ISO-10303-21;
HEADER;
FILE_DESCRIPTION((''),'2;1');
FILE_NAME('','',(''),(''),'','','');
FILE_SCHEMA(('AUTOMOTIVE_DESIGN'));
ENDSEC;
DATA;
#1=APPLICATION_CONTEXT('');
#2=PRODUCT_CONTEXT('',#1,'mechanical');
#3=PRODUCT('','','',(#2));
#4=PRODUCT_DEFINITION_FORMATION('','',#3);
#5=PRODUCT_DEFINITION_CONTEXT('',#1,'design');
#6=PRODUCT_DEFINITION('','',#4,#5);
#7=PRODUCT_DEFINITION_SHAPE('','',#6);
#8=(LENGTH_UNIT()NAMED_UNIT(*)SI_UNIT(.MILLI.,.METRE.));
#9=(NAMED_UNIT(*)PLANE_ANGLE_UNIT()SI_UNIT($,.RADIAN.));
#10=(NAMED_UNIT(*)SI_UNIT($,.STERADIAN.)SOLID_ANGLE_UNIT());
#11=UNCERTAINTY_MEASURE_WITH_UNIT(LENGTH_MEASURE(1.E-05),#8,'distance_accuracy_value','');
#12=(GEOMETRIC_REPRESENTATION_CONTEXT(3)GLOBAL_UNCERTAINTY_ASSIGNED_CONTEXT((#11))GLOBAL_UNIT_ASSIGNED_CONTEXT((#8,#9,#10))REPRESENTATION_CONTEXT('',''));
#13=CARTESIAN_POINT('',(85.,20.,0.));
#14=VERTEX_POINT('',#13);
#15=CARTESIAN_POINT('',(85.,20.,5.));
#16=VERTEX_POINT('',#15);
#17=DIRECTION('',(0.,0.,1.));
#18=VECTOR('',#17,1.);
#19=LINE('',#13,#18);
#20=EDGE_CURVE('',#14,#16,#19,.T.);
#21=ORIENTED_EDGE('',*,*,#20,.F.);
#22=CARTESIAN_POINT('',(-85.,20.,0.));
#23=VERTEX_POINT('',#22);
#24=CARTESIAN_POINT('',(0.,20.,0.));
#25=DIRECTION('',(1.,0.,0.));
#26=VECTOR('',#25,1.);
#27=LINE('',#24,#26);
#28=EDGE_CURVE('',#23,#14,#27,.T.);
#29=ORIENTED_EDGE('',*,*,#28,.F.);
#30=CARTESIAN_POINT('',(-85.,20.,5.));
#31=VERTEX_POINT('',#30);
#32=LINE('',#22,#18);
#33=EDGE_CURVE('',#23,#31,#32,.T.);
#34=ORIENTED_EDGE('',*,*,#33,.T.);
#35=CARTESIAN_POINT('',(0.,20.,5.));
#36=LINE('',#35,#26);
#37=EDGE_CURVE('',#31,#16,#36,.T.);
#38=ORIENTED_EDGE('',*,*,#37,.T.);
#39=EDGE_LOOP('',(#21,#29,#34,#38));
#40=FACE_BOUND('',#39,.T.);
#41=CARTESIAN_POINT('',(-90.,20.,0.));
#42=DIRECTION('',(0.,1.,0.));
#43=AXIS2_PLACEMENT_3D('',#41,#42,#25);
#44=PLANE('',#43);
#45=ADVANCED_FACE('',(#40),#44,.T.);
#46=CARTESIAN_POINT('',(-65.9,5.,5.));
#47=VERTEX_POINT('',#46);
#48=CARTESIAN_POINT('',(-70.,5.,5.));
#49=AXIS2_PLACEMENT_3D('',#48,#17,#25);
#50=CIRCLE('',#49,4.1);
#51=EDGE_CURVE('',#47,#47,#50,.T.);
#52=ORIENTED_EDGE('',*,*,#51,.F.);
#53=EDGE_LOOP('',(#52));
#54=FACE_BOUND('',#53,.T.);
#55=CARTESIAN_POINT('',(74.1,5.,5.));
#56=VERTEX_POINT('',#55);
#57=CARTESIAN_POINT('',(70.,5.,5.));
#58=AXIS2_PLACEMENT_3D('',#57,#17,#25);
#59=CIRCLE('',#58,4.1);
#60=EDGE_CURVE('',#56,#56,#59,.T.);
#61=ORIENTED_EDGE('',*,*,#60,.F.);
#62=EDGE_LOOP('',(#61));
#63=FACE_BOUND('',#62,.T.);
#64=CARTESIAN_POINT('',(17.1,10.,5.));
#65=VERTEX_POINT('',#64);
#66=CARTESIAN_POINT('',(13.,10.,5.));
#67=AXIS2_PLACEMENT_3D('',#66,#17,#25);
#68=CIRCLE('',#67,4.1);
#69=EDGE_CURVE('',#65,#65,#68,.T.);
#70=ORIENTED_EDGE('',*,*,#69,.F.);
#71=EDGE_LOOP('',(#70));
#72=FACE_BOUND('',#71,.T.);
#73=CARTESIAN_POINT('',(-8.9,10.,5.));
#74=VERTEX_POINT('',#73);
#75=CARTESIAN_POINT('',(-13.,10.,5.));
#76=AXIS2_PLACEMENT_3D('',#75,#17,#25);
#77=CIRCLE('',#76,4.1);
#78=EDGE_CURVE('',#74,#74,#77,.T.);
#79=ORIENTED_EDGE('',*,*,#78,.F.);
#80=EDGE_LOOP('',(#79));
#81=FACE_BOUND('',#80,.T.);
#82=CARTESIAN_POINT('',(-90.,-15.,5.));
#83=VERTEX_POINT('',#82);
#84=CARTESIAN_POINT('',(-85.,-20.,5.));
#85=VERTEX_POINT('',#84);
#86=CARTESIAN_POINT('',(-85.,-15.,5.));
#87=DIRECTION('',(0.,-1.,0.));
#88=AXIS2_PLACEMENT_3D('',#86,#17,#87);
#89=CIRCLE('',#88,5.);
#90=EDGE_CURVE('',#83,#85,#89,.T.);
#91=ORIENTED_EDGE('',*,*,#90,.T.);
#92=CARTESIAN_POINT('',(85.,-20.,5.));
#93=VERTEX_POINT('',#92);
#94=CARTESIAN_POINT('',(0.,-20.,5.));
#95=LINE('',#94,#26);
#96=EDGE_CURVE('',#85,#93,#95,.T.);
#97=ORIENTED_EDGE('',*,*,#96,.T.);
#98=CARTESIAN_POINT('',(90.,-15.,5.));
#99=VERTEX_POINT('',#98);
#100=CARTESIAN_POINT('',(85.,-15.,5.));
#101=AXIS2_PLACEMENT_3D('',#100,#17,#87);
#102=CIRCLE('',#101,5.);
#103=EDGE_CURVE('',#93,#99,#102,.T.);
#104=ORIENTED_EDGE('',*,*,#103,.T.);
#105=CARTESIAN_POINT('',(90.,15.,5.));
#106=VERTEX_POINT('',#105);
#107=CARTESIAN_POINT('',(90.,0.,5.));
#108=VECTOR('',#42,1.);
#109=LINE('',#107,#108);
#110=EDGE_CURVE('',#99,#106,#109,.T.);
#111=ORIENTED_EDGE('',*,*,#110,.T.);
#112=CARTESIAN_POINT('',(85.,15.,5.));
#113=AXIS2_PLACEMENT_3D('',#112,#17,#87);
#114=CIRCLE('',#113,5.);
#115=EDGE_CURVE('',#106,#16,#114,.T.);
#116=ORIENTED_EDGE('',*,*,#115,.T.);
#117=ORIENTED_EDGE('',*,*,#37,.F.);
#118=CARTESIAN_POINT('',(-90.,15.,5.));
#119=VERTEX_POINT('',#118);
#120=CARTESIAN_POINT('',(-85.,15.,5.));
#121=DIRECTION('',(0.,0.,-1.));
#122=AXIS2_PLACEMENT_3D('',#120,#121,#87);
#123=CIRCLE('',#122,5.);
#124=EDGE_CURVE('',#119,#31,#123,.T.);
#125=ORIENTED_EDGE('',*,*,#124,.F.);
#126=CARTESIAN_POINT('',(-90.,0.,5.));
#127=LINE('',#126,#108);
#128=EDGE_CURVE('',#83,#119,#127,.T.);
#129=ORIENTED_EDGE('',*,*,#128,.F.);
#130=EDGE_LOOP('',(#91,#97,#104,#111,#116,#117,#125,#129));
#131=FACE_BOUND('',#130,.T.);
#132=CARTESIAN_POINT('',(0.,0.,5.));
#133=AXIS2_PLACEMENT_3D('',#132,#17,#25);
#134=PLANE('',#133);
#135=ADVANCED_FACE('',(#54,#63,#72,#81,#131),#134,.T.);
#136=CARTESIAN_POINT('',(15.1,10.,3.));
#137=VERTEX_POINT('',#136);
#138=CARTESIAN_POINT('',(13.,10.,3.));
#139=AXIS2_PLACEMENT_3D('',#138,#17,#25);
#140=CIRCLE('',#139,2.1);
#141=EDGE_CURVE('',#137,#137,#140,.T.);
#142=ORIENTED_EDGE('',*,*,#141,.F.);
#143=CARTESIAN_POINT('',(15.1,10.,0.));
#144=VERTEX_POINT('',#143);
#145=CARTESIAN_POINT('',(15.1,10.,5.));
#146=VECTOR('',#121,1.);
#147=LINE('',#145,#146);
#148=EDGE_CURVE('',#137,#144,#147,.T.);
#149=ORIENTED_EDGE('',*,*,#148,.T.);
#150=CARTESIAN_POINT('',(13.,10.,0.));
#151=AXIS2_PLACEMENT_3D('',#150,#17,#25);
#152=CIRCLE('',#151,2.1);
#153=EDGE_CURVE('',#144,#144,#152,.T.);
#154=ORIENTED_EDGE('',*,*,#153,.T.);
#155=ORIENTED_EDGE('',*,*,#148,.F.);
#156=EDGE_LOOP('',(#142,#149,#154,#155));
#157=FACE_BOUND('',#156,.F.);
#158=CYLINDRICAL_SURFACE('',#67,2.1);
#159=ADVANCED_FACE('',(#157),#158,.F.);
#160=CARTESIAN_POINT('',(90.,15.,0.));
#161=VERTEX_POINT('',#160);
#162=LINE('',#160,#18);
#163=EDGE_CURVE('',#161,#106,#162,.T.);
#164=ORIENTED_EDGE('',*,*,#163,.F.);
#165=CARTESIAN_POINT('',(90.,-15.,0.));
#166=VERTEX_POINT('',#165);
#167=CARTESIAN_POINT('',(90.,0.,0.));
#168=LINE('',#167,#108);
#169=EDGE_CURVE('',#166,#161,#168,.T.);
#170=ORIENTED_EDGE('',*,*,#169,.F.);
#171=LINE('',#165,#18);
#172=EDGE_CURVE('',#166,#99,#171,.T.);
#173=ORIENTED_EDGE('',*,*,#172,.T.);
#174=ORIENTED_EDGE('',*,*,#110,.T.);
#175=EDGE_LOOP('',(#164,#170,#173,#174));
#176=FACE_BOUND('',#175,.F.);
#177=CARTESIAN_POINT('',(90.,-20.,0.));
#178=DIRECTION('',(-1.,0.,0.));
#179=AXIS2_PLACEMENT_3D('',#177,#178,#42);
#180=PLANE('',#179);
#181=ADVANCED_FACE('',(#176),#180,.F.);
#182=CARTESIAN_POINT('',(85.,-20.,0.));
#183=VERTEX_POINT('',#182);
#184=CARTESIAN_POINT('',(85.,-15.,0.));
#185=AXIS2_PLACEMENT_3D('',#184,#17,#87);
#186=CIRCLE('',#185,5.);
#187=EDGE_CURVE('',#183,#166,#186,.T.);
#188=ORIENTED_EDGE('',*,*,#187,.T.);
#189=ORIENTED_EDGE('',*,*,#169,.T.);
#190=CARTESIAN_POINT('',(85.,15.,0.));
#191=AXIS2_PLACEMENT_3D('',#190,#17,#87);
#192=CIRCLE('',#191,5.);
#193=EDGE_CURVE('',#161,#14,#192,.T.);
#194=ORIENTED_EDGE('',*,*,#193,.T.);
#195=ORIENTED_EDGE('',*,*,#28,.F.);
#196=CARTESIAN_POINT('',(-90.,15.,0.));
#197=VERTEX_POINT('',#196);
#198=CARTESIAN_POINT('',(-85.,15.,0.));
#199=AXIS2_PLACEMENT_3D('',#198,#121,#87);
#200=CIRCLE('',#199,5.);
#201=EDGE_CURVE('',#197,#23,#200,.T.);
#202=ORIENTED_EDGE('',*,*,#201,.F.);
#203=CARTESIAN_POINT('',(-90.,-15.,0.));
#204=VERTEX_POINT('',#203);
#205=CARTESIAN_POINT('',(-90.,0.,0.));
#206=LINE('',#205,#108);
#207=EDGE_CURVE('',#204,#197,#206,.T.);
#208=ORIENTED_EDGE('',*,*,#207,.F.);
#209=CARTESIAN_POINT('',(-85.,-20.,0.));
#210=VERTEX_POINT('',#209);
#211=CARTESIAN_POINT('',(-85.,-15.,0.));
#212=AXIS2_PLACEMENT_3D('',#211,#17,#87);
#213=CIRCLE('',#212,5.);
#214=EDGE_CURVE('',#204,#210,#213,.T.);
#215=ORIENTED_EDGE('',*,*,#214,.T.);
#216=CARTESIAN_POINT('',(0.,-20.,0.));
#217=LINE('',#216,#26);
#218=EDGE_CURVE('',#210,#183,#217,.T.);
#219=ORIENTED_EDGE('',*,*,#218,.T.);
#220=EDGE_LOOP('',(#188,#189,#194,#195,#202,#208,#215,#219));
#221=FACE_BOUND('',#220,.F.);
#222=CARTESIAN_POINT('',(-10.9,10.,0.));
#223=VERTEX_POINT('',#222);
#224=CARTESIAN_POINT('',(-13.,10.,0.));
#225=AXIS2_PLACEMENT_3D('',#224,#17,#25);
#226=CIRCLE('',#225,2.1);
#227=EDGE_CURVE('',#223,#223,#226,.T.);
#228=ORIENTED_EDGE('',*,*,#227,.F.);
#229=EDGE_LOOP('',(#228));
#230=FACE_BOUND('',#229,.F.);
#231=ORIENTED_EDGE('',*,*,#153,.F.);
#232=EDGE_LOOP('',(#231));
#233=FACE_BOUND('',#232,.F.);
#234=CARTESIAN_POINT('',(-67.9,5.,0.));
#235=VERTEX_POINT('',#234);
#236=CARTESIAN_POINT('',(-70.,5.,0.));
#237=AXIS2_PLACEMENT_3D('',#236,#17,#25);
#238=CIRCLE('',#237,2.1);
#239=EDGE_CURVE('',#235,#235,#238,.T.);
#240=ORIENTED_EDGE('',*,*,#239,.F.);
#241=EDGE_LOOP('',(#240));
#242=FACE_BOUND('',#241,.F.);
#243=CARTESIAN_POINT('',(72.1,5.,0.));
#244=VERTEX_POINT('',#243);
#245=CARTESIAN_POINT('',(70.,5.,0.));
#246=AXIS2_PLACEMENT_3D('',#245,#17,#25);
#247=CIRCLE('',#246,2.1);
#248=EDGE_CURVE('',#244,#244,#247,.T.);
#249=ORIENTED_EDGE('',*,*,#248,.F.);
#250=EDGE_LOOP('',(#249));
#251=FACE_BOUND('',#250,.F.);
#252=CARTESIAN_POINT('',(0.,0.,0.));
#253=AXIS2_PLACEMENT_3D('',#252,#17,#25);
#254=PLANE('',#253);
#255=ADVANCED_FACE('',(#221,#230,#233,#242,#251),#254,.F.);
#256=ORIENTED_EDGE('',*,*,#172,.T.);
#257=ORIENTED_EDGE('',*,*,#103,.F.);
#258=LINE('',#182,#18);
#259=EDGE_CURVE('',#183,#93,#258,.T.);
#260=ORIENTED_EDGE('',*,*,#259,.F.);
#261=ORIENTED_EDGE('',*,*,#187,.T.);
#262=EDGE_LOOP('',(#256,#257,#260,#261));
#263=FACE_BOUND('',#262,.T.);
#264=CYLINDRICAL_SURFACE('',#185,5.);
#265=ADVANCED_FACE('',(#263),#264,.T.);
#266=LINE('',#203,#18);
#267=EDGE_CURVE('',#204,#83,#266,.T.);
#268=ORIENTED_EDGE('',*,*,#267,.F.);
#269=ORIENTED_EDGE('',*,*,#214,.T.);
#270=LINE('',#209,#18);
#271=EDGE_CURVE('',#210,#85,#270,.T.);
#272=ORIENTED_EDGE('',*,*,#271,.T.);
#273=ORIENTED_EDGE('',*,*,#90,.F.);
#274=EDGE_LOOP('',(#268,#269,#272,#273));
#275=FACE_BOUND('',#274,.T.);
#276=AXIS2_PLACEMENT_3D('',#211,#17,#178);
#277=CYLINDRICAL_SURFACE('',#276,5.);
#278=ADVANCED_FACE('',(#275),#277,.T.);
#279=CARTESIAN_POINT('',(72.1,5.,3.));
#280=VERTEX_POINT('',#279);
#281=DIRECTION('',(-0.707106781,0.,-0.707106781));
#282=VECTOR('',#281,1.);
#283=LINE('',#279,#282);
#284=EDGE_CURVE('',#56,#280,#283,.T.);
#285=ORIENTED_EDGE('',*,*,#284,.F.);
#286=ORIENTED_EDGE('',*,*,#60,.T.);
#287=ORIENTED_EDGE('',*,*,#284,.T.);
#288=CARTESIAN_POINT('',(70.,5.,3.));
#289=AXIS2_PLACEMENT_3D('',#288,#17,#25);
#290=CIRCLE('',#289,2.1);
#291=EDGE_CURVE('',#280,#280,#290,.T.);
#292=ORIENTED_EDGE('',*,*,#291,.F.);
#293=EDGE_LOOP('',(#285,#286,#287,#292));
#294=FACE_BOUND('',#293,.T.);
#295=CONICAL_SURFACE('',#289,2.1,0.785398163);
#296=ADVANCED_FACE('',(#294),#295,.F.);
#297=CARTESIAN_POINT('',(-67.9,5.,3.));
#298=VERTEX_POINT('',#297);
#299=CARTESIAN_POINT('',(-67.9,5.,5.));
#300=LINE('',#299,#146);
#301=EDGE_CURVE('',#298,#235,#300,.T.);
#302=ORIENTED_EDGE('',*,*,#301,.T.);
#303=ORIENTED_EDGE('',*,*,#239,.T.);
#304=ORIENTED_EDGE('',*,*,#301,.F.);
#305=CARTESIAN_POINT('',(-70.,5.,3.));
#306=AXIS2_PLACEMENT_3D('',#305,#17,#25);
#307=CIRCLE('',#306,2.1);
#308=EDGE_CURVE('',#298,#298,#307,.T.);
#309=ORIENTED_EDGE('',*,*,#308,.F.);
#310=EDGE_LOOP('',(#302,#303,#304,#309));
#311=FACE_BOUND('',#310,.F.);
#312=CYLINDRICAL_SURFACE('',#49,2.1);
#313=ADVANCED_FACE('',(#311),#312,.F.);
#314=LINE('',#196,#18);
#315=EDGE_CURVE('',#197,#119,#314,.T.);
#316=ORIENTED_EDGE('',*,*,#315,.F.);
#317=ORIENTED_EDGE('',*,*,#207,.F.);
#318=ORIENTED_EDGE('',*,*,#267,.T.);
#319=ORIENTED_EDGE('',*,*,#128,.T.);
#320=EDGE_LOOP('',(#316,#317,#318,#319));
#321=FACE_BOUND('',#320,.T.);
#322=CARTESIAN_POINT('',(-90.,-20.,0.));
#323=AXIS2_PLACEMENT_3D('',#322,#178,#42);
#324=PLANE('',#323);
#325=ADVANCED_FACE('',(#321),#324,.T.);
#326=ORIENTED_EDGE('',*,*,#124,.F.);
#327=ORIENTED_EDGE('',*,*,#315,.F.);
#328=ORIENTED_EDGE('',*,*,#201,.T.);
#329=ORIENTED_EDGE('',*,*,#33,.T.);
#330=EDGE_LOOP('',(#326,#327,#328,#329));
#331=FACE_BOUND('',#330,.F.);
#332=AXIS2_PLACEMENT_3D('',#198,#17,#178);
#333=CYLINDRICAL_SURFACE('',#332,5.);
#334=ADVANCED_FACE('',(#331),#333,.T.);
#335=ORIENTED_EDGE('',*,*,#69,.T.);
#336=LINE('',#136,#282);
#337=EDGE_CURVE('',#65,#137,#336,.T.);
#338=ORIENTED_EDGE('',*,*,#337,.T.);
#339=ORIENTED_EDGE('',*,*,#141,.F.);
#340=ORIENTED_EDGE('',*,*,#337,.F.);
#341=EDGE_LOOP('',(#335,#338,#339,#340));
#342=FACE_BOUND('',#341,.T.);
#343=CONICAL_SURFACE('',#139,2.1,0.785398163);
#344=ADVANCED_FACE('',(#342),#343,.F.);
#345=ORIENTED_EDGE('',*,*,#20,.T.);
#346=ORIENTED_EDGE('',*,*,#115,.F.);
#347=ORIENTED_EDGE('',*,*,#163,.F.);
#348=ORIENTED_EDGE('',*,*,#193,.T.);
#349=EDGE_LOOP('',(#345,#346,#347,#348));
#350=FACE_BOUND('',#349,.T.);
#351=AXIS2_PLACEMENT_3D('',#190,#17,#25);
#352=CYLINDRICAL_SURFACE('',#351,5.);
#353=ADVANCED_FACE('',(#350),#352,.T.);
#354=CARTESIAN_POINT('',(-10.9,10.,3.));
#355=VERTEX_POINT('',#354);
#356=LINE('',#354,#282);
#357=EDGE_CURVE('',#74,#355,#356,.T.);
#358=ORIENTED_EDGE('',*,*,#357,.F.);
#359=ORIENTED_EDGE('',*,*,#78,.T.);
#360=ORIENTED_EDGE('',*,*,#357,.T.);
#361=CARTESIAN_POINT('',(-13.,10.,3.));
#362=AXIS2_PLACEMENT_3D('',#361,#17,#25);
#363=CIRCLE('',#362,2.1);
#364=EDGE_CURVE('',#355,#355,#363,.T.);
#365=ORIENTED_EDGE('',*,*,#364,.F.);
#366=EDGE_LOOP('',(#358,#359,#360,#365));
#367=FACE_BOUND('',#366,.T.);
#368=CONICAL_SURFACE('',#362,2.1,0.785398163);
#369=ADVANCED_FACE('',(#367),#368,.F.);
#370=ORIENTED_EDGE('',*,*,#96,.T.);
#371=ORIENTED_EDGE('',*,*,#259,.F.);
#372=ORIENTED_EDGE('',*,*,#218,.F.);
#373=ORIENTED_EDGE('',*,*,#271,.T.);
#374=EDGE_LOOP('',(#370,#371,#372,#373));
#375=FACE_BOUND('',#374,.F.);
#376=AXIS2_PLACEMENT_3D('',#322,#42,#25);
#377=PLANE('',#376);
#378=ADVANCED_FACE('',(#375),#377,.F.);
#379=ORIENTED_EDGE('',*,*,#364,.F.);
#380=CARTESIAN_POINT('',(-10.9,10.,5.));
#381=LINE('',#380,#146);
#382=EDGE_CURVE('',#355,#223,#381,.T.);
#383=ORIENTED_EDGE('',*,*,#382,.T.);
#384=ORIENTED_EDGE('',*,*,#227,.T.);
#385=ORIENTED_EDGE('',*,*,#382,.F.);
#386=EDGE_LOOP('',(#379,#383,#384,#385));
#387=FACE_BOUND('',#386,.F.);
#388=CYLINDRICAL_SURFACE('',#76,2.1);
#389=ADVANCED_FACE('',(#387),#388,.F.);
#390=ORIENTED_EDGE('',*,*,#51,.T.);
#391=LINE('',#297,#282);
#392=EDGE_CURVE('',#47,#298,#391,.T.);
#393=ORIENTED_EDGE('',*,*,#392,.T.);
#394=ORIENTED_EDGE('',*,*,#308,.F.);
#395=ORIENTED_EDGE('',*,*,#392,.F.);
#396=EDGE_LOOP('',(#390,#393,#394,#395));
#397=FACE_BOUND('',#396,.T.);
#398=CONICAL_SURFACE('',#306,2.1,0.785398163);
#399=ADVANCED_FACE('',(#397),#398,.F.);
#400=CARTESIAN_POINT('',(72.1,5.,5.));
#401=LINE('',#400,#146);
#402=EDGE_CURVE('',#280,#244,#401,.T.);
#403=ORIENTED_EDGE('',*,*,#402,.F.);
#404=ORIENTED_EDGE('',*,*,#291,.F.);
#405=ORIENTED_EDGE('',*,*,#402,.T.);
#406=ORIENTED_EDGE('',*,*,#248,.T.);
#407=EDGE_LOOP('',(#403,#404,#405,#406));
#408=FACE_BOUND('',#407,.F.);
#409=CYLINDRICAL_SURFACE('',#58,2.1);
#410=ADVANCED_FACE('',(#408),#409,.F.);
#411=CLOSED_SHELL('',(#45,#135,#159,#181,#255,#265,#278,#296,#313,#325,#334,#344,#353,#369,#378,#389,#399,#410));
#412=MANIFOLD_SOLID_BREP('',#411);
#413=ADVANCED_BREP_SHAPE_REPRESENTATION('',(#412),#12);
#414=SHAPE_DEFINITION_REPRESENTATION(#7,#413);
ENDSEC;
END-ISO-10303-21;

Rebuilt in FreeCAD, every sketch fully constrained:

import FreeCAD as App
import Part
import Sketcher

V = App.Vector
Q = App.Units.Quantity


def edges_at(feature, points):
    """Names of the edges that pass closest to the given points."""
    edges = feature.Shape.Edges
    near = lambda p: min(range(len(edges)), key=lambda i: edges[i].distToShape(Part.Vertex(*p))[0])
    return sorted({f"Edge{near(p) + 1}" for p in points})


def add_polygon(sketch, points):
    """Adds a closed chain of lines whose ends are joined by coincident constraints."""
    first, n = sketch.GeometryCount, len(points)
    for a, b in zip(points, points[1:] + points[:1]):
        sketch.addGeometry(Part.LineSegment(App.Vector(*a, 0), App.Vector(*b, 0)), False)
    for i in range(n):
        sketch.addConstraint(Sketcher.Constraint("Coincident", first + i, 2, first + (i + 1) % n, 1))

doc = App.newDocument("Part")
body = doc.addObject("PartDesign::Body", "Body")

sketch1 = body.newObject("Sketcher::SketchObject", "Sketch")
sketch1.AttachmentSupport = (doc.getObject("XY_Plane"), [""])
sketch1.MapMode = "FlatFace"
add_polygon(sketch1, [(-90, 20), (-90, -20), (90, -20), (90, 20)])
sketch1.addConstraint(Sketcher.Constraint("Vertical", 0))
sketch1.addConstraint(Sketcher.Constraint("Horizontal", 1))
sketch1.addConstraint(Sketcher.Constraint("Vertical", 2))
sketch1.addConstraint(Sketcher.Constraint("Horizontal", 3))
sketch1.addConstraint(Sketcher.Constraint("Symmetric", 0, 2, 2, 2, -1, 1))
sketch1.addConstraint(Sketcher.Constraint("DistanceX", 1, 1, 1, 2, Q("180 mm")))
sketch1.addConstraint(Sketcher.Constraint("DistanceY", 0, 2, 0, 1, Q("40 mm")))
pad1 = body.newObject("PartDesign::Pad", "Pad")
pad1.Profile = sketch1
pad1.Length = 5
doc.recompute()

fillet = body.newObject("PartDesign::Fillet", "Fillet")
fillet.Base = (pad1, edges_at(pad1, [
    (90, -20, 2.5),
    (-90, -20, 2.5),
    (-90, 20, 2.5),
    (90, 20, 2.5),
]))
fillet.Radius = 5

sketch2 = body.newObject("Sketcher::SketchObject", "Sketch001")
sketch2.AttachmentSupport = (doc.getObject("XY_Plane"), [""])
sketch2.MapMode = "FlatFace"
sketch2.AttachmentOffset = App.Placement(V(0, 0, 5), App.Rotation())
sketch2.addGeometry(Part.Circle(V(-70, 5, 0), V(0, 0, 1), 2.1), False)
sketch2.addGeometry(Part.Circle(V(-13, 10, 0), V(0, 0, 1), 2.1), False)
sketch2.addGeometry(Part.Circle(V(13, 10, 0), V(0, 0, 1), 2.1), False)
sketch2.addGeometry(Part.Circle(V(70, 5, 0), V(0, 0, 1), 2.1), False)
sketch2.addConstraint(Sketcher.Constraint("Equal", 0, 1))
sketch2.addConstraint(Sketcher.Constraint("Equal", 1, 2))
sketch2.addConstraint(Sketcher.Constraint("Equal", 2, 3))
sketch2.addConstraint(Sketcher.Constraint("Symmetric", 1, 3, 2, 3, -2))
sketch2.addConstraint(Sketcher.Constraint("Symmetric", 0, 3, 3, 3, -2))
sketch2.addConstraint(Sketcher.Constraint("Diameter", 0, Q("4.2 mm")))
sketch2.addConstraint(Sketcher.Constraint("DistanceX", 0, 3, -1, 1, Q("70 mm")))
sketch2.addConstraint(Sketcher.Constraint("DistanceY", -1, 1, 0, 3, Q("5 mm")))
sketch2.addConstraint(Sketcher.Constraint("DistanceX", 1, 3, -1, 1, Q("13 mm")))
sketch2.addConstraint(Sketcher.Constraint("DistanceY", -1, 1, 1, 3, Q("10 mm")))
pocket1 = body.newObject("PartDesign::Pocket", "Pocket")
pocket1.Profile = sketch2
pocket1.Length = 5
doc.recompute()

chamfer = body.newObject("PartDesign::Chamfer", "Chamfer")
chamfer.Base = (pocket1, edges_at(pocket1, [
    (-72.1, 5, 5),
    (-15.1, 10, 5),
    (10.9, 10, 5),
    (67.9, 5, 5),
]))
chamfer.Size = 2

doc.recompute()
